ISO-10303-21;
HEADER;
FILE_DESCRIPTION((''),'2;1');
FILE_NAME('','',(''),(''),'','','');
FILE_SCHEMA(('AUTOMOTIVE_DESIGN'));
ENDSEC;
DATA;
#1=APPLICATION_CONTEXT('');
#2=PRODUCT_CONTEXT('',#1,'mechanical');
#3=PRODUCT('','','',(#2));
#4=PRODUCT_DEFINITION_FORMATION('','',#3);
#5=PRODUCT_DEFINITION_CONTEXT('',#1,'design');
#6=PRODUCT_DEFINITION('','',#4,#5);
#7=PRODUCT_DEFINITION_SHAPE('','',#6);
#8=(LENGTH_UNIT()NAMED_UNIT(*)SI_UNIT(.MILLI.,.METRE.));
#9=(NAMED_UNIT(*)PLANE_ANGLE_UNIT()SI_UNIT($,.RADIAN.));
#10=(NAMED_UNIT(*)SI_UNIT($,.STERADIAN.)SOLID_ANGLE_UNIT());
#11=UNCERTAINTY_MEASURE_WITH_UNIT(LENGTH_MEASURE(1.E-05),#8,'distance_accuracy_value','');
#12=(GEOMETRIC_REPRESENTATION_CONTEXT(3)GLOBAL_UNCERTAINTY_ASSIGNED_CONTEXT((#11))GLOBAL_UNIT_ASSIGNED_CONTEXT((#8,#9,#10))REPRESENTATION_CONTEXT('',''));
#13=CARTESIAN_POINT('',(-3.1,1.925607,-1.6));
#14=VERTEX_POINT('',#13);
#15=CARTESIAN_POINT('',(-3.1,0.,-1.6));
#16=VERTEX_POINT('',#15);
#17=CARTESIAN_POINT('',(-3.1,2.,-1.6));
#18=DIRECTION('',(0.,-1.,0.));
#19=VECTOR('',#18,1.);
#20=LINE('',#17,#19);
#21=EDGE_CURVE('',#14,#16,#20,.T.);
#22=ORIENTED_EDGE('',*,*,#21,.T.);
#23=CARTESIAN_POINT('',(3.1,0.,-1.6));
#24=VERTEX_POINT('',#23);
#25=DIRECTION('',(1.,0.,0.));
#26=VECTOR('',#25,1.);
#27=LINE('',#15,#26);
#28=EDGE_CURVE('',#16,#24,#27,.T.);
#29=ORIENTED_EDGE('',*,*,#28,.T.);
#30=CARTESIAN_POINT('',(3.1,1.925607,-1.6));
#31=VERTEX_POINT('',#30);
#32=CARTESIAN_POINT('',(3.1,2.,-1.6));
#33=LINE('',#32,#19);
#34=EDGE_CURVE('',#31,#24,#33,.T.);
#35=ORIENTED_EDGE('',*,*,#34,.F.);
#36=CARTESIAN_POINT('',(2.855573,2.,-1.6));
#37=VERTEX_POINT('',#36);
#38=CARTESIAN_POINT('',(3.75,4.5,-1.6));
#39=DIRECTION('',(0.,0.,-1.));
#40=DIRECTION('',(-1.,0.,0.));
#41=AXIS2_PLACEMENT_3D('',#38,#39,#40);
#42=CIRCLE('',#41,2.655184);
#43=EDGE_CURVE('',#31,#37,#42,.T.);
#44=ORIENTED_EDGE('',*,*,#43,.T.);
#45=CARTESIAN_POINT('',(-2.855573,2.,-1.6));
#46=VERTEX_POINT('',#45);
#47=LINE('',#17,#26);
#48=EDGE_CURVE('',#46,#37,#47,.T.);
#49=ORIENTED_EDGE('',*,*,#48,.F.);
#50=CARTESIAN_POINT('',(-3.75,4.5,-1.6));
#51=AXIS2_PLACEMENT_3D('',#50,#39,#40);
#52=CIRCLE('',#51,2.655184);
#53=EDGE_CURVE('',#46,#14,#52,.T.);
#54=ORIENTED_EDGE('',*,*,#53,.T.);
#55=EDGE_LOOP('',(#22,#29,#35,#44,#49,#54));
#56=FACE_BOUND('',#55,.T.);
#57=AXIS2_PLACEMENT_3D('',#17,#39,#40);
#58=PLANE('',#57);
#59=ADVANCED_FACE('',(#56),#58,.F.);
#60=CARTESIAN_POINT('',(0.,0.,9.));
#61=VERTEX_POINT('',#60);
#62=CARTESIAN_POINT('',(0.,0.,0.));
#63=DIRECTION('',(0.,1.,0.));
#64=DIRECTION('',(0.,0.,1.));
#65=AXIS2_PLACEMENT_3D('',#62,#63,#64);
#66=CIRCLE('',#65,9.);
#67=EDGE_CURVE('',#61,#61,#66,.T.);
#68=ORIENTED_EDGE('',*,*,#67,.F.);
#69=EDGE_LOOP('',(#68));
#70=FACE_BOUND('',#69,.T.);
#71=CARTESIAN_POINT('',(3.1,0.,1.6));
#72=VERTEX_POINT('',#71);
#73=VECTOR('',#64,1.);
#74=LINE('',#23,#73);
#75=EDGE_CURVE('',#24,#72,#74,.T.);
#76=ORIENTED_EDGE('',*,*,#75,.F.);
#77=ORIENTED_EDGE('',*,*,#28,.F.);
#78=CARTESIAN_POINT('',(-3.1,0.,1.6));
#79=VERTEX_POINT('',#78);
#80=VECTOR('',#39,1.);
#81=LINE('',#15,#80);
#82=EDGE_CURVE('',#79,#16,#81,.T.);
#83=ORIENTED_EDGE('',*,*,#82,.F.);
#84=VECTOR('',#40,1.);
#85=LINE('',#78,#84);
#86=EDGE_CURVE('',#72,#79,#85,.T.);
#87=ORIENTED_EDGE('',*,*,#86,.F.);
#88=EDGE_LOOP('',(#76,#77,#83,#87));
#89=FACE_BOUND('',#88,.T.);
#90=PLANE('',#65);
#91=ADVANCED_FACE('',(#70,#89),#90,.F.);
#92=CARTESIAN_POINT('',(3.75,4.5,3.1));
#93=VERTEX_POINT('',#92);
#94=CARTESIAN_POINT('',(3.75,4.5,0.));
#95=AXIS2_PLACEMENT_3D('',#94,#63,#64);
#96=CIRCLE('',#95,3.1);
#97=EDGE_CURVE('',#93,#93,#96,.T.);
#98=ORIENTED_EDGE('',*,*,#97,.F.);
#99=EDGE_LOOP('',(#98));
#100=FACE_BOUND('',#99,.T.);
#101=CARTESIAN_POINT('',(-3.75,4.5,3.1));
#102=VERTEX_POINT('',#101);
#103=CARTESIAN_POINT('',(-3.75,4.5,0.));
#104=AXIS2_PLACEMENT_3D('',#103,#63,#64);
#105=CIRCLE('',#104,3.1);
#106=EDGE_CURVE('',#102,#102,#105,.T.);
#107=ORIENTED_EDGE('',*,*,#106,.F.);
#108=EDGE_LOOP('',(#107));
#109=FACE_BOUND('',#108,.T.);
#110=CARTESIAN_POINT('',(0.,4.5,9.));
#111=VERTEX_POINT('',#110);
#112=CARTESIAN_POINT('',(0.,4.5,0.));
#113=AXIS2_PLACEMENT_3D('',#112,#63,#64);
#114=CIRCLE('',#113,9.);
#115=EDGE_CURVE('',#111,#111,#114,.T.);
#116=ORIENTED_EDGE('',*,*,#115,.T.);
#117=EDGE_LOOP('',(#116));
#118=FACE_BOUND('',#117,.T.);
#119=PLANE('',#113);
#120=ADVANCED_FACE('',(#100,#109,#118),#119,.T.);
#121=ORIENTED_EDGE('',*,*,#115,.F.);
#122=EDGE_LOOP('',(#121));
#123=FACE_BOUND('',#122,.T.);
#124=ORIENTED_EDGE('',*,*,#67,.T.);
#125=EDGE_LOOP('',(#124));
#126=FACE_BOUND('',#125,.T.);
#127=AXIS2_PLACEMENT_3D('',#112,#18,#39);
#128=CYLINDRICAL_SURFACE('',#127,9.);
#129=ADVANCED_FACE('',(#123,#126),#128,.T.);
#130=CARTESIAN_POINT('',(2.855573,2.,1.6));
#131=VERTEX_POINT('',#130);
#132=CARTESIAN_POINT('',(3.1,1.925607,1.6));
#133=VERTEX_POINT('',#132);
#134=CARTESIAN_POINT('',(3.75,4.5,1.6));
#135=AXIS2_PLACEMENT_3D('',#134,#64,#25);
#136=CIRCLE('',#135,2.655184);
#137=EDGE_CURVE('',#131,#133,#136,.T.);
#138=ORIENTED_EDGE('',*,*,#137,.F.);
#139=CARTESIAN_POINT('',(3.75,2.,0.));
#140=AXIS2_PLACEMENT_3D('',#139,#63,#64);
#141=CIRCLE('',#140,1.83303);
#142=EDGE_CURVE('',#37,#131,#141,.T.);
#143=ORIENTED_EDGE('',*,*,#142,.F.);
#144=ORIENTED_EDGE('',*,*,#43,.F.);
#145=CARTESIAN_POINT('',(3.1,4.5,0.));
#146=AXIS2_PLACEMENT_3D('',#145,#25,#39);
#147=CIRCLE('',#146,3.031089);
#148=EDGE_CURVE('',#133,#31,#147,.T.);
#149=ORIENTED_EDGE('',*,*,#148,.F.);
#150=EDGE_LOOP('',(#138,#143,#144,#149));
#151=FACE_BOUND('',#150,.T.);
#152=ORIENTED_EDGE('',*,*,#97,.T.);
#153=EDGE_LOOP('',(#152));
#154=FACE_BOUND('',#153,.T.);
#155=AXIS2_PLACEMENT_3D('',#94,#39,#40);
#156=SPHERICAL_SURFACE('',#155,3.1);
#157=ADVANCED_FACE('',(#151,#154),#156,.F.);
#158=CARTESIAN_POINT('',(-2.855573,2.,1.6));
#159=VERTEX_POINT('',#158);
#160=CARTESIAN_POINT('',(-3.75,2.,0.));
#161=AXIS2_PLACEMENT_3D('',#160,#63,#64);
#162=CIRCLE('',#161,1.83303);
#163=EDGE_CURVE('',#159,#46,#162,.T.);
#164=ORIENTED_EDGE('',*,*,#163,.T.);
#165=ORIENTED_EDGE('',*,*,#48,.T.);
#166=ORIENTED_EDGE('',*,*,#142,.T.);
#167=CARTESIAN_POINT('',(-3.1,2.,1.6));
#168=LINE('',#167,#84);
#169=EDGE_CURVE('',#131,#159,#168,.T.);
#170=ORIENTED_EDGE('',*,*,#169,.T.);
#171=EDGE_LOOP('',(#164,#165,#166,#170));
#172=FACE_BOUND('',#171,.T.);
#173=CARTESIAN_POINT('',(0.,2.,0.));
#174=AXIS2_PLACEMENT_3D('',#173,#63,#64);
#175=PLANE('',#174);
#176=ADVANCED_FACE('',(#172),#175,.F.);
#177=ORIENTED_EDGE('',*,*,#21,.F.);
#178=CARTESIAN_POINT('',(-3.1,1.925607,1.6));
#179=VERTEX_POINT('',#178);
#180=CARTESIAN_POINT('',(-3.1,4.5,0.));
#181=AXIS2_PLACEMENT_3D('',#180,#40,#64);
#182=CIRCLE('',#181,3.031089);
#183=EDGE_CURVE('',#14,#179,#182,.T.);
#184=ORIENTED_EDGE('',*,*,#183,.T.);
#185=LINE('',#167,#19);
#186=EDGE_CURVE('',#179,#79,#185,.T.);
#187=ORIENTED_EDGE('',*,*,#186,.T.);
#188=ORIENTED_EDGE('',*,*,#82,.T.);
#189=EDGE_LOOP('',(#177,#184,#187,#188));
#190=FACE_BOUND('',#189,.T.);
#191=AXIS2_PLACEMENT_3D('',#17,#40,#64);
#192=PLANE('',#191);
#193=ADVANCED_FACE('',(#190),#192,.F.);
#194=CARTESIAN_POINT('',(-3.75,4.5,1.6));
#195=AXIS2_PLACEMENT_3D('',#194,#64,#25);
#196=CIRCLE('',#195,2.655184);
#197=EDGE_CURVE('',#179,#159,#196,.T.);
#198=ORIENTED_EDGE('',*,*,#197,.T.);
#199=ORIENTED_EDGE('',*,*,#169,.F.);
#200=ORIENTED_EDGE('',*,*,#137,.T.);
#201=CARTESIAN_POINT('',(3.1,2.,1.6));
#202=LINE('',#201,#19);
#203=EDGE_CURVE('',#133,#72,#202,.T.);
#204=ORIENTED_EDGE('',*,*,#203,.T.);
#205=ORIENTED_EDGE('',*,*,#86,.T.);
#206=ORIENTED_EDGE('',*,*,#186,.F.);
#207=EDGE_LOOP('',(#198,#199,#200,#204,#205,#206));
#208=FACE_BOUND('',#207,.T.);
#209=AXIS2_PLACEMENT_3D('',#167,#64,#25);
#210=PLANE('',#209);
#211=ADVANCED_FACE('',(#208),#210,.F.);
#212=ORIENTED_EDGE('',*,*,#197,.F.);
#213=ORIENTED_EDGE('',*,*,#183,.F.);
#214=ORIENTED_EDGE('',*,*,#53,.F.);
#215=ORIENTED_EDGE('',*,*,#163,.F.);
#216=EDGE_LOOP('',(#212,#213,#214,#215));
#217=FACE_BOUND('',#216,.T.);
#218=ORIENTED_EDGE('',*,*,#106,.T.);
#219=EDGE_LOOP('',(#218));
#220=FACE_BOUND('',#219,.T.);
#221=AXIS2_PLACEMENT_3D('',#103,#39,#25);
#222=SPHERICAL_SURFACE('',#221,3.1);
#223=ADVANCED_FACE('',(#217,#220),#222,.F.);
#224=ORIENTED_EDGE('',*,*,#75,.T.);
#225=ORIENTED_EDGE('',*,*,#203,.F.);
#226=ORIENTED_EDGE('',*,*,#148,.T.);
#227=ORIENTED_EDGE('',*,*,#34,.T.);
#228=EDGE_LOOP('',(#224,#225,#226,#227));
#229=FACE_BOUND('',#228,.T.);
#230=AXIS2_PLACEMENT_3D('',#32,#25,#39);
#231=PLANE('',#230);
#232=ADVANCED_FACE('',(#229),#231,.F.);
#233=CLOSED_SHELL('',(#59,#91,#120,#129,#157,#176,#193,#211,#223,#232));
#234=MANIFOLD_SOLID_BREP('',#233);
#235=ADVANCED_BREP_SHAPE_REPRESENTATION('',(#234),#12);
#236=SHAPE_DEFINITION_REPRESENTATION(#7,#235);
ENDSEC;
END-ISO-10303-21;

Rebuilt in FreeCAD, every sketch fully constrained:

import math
import FreeCAD as App
import Part
import Sketcher
Q = App.Units.Quantity

doc = App.newDocument("Part")
body = doc.addObject("PartDesign::Body", "Body")

sketch1 = body.newObject("Sketcher::SketchObject", "Sketch")
sketch1.AttachmentSupport = (doc.getObject("XZ_Plane"), [""])
sketch1.MapMode = "FlatFace"
sketch1.addGeometry(Part.Circle(App.Vector(0, 0, 0), App.Vector(0, 0, 1), 9), False)
sketch1.addConstraint([
    Sketcher.Constraint("Coincident", 0, 3, -1, 1),
    Sketcher.Constraint("Diameter", 0, Q("18 mm")),
])
pad1 = body.newObject("PartDesign::Pad", "Pad")
pad1.Profile = sketch1
pad1.Length = 4.5
pad1.Reversed = True

sketch2 = body.newObject("Sketcher::SketchObject", "Sketch001")
sketch2.AttachmentSupport = (doc.getObject("XZ_Plane"), [""])
sketch2.MapMode = "FlatFace"
sketch2.addGeometry([
    Part.LineSegment(App.Vector(-3.1, 1.6, 0), App.Vector(-3.1, -1.6, 0)),
    Part.LineSegment(App.Vector(-3.1, -1.6, 0), App.Vector(3.1, -1.6, 0)),
    Part.LineSegment(App.Vector(3.1, -1.6, 0), App.Vector(3.1, 1.6, 0)),
    Part.LineSegment(App.Vector(3.1, 1.6, 0), App.Vector(-3.1, 1.6, 0)),
], False)
sketch2.addConstraint([
    Sketcher.Constraint("Coincident", 0, 2, 1, 1),
    Sketcher.Constraint("Coincident", 1, 2, 2, 1),
    Sketcher.Constraint("Coincident", 2, 2, 3, 1),
    Sketcher.Constraint("Coincident", 3, 2, 0, 1),
    Sketcher.Constraint("Vertical", 0),
    Sketcher.Constraint("Horizontal", 1),
    Sketcher.Constraint("Vertical", 2),
    Sketcher.Constraint("Horizontal", 3),
    Sketcher.Constraint("Symmetric", 0, 2, 2, 2, -1, 1),
    Sketcher.Constraint("DistanceX", 1, 1, 1, 2, Q("6.2 mm")),
    Sketcher.Constraint("DistanceY", 0, 2, 0, 1, Q("3.2 mm")),
])
pocket1 = body.newObject("PartDesign::Pocket", "Pocket")
pocket1.Profile = sketch2
pocket1.Length = 2

sketch3 = body.newObject("Sketcher::SketchObject", "Sketch002")
sketch3.AttachmentSupport = (doc.getObject("XZ_Plane"), [""])
sketch3.MapMode = "FlatFace"
sketch3.AttachmentOffset = App.Placement(App.Vector(0, 0, -4.5), App.Rotation())
sketch3.addGeometry([
    Part.LineSegment(App.Vector(-3.8, 3.1, 0), App.Vector(-3.8, -3.1, 0)),
    Part.ArcOfCircle(Part.Circle(App.Vector(-3.8, 0, 0), App.Vector(0, 0, 1), 3.1), math.radians(90), math.radians(270)),
], False)
sketch3.addGeometry(Part.LineSegment(App.Vector(-3.8, -3.1, 0), App.Vector(-3.8, 3.1, 0)), True)
sketch3.addConstraint([
    Sketcher.Constraint("Coincident", 0, 1, 1, 1),
    Sketcher.Constraint("Coincident", 1, 2, 0, 2),
    Sketcher.Constraint("Vertical", 0),
    Sketcher.Constraint("Vertical", 2),
    Sketcher.Constraint("Coincident", 2, 1, 1, 2),
    Sketcher.Constraint("PointOnObject", 1, 3, -1),
    Sketcher.Constraint("Vertical", 1, 3, 0, 1),
    Sketcher.Constraint("Equal", 0, 2),
    Sketcher.Constraint("Radius", 1, Q("3.1 mm")),
    Sketcher.Constraint("DistanceX", 1, 3, -1, 1, Q("3.75 mm")),
])
groove = body.newObject("PartDesign::Groove", "Groove")
groove.Profile = sketch3
groove.ReferenceAxis = (sketch3, ["Axis0"])
groove.Angle = 360
doc.recompute()

mirrored = body.newObject("PartDesign::Mirrored", "Mirrored")
mirrored.Originals = [groove]
mirrored.MirrorPlane = (doc.getObject("YZ_Plane"), [""])
body.Tip = mirrored

doc.recompute()
